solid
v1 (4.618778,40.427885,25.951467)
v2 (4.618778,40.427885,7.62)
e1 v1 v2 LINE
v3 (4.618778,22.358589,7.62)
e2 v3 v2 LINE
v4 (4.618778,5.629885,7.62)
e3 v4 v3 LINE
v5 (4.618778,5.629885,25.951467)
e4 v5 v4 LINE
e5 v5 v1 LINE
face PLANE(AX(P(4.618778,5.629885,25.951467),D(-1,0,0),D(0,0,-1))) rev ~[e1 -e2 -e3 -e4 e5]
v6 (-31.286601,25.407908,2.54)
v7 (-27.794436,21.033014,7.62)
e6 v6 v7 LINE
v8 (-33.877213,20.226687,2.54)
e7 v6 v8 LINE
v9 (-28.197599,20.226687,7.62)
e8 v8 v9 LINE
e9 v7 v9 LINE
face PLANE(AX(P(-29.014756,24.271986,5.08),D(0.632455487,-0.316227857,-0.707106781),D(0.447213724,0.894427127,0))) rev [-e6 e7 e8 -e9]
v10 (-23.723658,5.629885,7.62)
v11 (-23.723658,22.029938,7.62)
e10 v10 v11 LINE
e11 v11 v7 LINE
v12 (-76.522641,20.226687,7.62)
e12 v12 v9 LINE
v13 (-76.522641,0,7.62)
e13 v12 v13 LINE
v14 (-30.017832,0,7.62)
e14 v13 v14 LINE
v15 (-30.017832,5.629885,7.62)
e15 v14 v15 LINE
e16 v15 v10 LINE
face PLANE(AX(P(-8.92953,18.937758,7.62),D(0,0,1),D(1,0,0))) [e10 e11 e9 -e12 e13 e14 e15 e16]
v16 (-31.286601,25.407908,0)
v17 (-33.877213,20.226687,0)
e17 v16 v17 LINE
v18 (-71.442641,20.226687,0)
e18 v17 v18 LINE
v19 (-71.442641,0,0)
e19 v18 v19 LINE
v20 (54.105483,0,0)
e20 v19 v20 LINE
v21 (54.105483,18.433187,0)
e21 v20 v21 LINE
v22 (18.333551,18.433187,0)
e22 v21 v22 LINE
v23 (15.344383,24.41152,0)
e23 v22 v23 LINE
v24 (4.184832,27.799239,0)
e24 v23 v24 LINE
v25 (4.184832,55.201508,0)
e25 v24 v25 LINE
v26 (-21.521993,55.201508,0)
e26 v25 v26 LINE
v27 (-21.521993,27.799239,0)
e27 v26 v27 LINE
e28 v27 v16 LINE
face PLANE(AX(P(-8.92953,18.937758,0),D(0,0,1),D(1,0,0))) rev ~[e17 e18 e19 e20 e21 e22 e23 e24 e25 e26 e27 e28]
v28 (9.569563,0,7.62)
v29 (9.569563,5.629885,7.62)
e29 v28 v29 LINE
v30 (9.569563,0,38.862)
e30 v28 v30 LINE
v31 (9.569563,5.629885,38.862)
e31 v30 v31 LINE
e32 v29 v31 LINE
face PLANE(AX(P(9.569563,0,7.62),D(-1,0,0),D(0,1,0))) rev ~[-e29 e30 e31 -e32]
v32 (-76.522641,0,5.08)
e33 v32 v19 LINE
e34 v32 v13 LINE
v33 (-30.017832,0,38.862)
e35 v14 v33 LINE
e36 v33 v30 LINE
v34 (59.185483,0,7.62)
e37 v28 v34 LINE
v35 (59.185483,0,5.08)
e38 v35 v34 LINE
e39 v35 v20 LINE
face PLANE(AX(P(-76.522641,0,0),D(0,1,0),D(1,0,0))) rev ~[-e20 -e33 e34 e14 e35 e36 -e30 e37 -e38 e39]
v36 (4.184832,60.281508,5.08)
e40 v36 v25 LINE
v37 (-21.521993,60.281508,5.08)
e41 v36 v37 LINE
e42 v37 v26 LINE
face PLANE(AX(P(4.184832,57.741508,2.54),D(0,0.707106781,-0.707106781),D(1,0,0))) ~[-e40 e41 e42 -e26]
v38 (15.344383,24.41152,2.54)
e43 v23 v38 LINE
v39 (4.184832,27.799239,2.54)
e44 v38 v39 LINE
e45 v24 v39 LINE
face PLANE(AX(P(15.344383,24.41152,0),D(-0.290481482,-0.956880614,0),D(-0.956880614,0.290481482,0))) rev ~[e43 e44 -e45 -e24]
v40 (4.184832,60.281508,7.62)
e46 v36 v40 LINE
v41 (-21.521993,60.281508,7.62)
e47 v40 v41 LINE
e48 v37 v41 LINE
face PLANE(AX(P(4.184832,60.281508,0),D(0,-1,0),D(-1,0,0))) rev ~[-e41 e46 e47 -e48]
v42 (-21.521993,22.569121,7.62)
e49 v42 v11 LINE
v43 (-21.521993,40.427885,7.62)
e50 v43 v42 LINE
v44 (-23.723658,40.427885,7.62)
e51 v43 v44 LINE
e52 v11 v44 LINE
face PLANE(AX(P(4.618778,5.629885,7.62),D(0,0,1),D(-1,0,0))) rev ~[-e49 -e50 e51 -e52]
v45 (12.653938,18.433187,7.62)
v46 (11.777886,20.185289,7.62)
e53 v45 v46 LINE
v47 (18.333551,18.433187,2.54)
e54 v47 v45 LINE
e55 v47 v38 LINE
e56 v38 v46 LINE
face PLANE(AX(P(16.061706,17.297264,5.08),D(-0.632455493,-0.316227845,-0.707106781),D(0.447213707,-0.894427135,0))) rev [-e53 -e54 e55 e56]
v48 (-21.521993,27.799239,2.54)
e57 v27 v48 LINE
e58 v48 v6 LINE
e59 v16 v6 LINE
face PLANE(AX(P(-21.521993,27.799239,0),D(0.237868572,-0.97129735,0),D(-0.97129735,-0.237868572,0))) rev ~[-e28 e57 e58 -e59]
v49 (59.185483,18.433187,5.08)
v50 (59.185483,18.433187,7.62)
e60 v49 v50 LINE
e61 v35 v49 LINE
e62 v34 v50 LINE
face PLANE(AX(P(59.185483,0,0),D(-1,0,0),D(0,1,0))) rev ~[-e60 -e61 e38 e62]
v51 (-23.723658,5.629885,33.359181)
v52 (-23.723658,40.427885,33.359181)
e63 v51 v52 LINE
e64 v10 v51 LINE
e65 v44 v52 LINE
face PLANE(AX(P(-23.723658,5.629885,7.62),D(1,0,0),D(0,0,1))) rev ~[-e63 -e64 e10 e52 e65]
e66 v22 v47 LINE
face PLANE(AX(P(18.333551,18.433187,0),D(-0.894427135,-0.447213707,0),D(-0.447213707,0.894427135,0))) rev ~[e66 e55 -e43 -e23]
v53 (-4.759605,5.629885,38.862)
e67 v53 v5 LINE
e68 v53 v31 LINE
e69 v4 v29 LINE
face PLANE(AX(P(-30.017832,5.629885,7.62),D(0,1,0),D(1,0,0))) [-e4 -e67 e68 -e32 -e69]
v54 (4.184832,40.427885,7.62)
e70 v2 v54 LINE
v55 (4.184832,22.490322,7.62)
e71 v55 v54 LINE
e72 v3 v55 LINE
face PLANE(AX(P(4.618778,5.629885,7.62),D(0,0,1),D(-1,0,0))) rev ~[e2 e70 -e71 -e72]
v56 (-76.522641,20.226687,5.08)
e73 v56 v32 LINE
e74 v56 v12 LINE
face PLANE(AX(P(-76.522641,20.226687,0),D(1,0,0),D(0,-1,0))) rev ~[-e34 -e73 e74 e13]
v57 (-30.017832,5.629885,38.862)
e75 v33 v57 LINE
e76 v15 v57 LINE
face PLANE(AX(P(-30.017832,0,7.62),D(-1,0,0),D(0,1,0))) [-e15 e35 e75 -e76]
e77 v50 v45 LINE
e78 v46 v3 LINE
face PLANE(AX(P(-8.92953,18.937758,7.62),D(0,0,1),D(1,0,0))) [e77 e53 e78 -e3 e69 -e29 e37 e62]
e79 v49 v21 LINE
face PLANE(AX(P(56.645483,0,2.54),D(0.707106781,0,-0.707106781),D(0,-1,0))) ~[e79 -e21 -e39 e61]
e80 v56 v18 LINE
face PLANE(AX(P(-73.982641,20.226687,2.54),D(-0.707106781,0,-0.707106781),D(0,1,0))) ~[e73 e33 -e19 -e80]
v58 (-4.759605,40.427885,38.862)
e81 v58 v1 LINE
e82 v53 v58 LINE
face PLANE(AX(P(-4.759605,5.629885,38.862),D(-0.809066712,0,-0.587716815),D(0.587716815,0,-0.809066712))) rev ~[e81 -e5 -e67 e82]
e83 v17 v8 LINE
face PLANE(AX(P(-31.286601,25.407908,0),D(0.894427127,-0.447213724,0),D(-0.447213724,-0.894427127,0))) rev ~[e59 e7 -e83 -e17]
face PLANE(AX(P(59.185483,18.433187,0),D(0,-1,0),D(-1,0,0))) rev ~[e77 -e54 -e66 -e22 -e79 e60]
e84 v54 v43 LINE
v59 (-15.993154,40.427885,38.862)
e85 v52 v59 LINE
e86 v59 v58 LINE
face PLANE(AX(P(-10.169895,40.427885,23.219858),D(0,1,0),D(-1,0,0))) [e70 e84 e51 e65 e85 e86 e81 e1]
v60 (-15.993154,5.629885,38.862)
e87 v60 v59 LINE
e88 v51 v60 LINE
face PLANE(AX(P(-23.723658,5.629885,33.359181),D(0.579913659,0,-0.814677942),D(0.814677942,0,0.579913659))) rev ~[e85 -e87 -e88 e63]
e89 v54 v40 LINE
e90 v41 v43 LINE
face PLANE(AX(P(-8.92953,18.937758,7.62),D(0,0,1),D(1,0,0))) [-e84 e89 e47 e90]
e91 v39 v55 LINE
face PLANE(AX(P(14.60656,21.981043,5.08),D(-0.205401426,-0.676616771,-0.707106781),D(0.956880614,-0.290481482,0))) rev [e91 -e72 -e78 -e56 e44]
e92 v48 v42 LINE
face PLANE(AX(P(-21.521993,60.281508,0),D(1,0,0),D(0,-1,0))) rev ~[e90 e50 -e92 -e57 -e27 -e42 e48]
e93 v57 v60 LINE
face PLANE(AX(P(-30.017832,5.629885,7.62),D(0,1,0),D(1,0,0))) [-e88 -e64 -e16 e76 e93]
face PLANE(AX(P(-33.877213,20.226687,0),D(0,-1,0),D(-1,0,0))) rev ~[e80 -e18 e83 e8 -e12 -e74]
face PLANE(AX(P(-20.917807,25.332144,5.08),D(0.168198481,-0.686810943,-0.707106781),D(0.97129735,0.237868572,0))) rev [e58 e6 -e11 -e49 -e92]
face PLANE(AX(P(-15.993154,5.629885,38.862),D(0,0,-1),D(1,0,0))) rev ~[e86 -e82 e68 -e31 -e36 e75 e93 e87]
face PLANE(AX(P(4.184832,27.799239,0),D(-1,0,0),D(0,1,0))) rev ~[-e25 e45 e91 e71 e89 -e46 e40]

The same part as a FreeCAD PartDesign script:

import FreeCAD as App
import Part
import Sketcher
from FreeCAD import Vector
Q = App.Units.Quantity


def edges_at(feature, points):
    """Names of the edges that pass closest to the given points."""
    edges = feature.Shape.Edges
    near = lambda p: min(range(len(edges)), key=lambda i: edges[i].distToShape(Part.Vertex(*p))[0])
    return sorted({f"Edge{near(p) + 1}" for p in points})

doc = App.newDocument("Part")
body = doc.addObject("PartDesign::Body", "Body")

sketch1 = body.newObject("Sketcher::SketchObject", "Sketch")
sketch1.AttachmentSupport = (doc.getObject("XY_Plane"), [""])
sketch1.MapMode = "FlatFace"
sketch1.addGeometry(Part.LineSegment(Vector(-76.522641, 20.226687, 0), Vector(-76.522641, 0, 0)), False)
sketch1.addGeometry(Part.LineSegment(Vector(-76.522641, 0, 0), Vector(59.185483, 0, 0)), False)
sketch1.addGeometry(Part.LineSegment(Vector(59.185483, 0, 0), Vector(59.185483, 18.433187, 0)), False)
sketch1.addGeometry(Part.LineSegment(Vector(59.185483, 18.433187, 0), Vector(18.333551, 18.433187, 0)), False)
sketch1.addGeometry(Part.LineSegment(Vector(18.333551, 18.433187, 0), Vector(15.344383, 24.41152, 0)), False)
sketch1.addGeometry(Part.LineSegment(Vector(15.344383, 24.41152, 0), Vector(4.184832, 27.799239, 0)), False)
sketch1.addGeometry(Part.LineSegment(Vector(4.184832, 27.799239, 0), Vector(4.184832, 60.281508, 0)), False)
sketch1.addGeometry(Part.LineSegment(Vector(4.184832, 60.281508, 0), Vector(-21.521993, 60.281508, 0)), False)
sketch1.addGeometry(Part.LineSegment(Vector(-21.521993, 60.281508, 0), Vector(-21.521993, 27.799239, 0)), False)
sketch1.addGeometry(Part.LineSegment(Vector(-21.521993, 27.799239, 0), Vector(-31.286601, 25.407908, 0)), False)
sketch1.addGeometry(Part.LineSegment(Vector(-31.286601, 25.407908, 0), Vector(-33.877213, 20.226687, 0)), False)
sketch1.addGeometry(Part.LineSegment(Vector(-33.877213, 20.226687, 0), Vector(-76.522641, 20.226687, 0)), False)
sketch1.addConstraint(Sketcher.Constraint("Coincident", 0, 2, 1, 1))
sketch1.addConstraint(Sketcher.Constraint("Coincident", 1, 2, 2, 1))
sketch1.addConstraint(Sketcher.Constraint("Coincident", 2, 2, 3, 1))
sketch1.addConstraint(Sketcher.Constraint("Coincident", 3, 2, 4, 1))
sketch1.addConstraint(Sketcher.Constraint("Coincident", 4, 2, 5, 1))
sketch1.addConstraint(Sketcher.Constraint("Coincident", 5, 2, 6, 1))
sketch1.addConstraint(Sketcher.Constraint("Coincident", 6, 2, 7, 1))
sketch1.addConstraint(Sketcher.Constraint("Coincident", 7, 2, 8, 1))
sketch1.addConstraint(Sketcher.Constraint("Coincident", 8, 2, 9, 1))
sketch1.addConstraint(Sketcher.Constraint("Coincident", 9, 2, 10, 1))
sketch1.addConstraint(Sketcher.Constraint("Coincident", 10, 2, 11, 1))
sketch1.addConstraint(Sketcher.Constraint("Coincident", 11, 2, 0, 1))
sketch1.addConstraint(Sketcher.Constraint("Vertical", 0))
sketch1.addConstraint(Sketcher.Constraint("Horizontal", 1))
sketch1.addConstraint(Sketcher.Constraint("Vertical", 2))
sketch1.addConstraint(Sketcher.Constraint("Horizontal", 3))
sketch1.addConstraint(Sketcher.Constraint("Vertical", 6))
sketch1.addConstraint(Sketcher.Constraint("Horizontal", 7))
sketch1.addConstraint(Sketcher.Constraint("Vertical", 8))
sketch1.addConstraint(Sketcher.Constraint("Horizontal", 11))
sketch1.addConstraint(Sketcher.Constraint("PointOnObject", 0, 2, -1))
sketch1.addConstraint(Sketcher.Constraint("Horizontal", 5, 2, 8, 2))
sketch1.addConstraint(Sketcher.Constraint("DistanceX", 11, 2, 11, 1, Q("42.645428 mm")))
sketch1.addConstraint(Sketcher.Constraint("DistanceY", 6, 1, 6, 2, Q("32.482268 mm")))
sketch1.addConstraint(Sketcher.Constraint("DistanceX", 9, 2, -1, 1, Q("31.286601 mm")))
sketch1.addConstraint(Sketcher.Constraint("DistanceX", 4, 2, 2, 2, Q("43.841099 mm")))
sketch1.addConstraint(Sketcher.Constraint("DistanceY", 9, 2, 7, 2, Q("34.873599 mm")))
sketch1.addConstraint(Sketcher.Constraint("Distance", 4, Q("6.68398 mm")))
sketch1.addConstraint(Sketcher.Constraint("Distance", 5, Q("11.662428 mm")))
sketch1.addConstraint(Sketcher.Constraint("Distance", 9, Q("10.05316 mm")))
sketch1.addConstraint(Sketcher.Constraint("Distance", 10, Q("5.792782 mm")))
sketch1.addConstraint(Sketcher.Constraint("DistanceX", 1, 1, 1, 2, Q("135.708123 mm")))
sketch1.addConstraint(Sketcher.Constraint("DistanceX", 3, 2, 3, 1, Q("40.851932 mm")))
sketch1.addConstraint(Sketcher.Constraint("DistanceX", 7, 2, 7, 1, Q("25.706825 mm")))
sketch1.addConstraint(Sketcher.Constraint("DistanceY", 0, 2, 0, 1, Q("20.226687 mm")))
sketch1.addConstraint(Sketcher.Constraint("DistanceY", 2, 1, 2, 2, Q("18.433187 mm")))
pad1 = body.newObject("PartDesign::Pad", "Pad")
pad1.Profile = sketch1
pad1.Length = Q("0.3 in")
doc.recompute()

chamfer = body.newObject("PartDesign::Chamfer", "Chamfer")
chamfer.Base = (pad1, edges_at(pad1, [
    (-26.404, 26.604, 7.62),
    (-32.582, 22.817, 7.62),
    (9.765, 26.105, 7.62),
    (16.839, 21.422, 7.62),
    (59.185, 9.217, 0),
    (-76.523, 10.113, 0),
    (-8.669, 60.282, 0),
]))
chamfer.Size = Q("0.2 in")

sketch2 = body.newObject("Sketcher::SketchObject", "Sketch001")
sketch2.AttachmentSupport = (doc.getObject("XY_Plane"), [""])
sketch2.MapMode = "FlatFace"
sketch2.AttachmentOffset = App.Placement(Vector(0, 0, 0.3 * 25.4), App.Rotation())
sketch2.addGeometry(Part.LineSegment(Vector(-30.017832, 5.629885, 0), Vector(-30.017832, 0, 0)), False)
sketch2.addGeometry(Part.LineSegment(Vector(-30.017832, 0, 0), Vector(9.569563, 0, 0)), False)
sketch2.addGeometry(Part.LineSegment(Vector(9.569563, 0, 0), Vector(9.569563, 5.629885, 0)), False)
sketch2.addGeometry(Part.LineSegment(Vector(9.569563, 5.629885, 0), Vector(-30.017832, 5.629885, 0)), False)
sketch2.addConstraint(Sketcher.Constraint("Coincident", 0, 2, 1, 1))
sketch2.addConstraint(Sketcher.Constraint("Coincident", 1, 2, 2, 1))
sketch2.addConstraint(Sketcher.Constraint("Coincident", 2, 2, 3, 1))
sketch2.addConstraint(Sketcher.Constraint("Coincident", 3, 2, 0, 1))
sketch2.addConstraint(Sketcher.Constraint("Vertical", 0))
sketch2.addConstraint(Sketcher.Constraint("Horizontal", 1))
sketch2.addConstraint(Sketcher.Constraint("Vertical", 2))
sketch2.addConstraint(Sketcher.Constraint("Horizontal", 3))
sketch2.addConstraint(Sketcher.Constraint("PointOnObject", 0, 2, -1))
sketch2.addConstraint(Sketcher.Constraint("DistanceX", 1, 1, 1, 2, Q("39.587395 mm")))
sketch2.addConstraint(Sketcher.Constraint("DistanceY", 0, 2, 0, 1, Q("5.629885 mm")))
sketch2.addConstraint(Sketcher.Constraint("DistanceX", 0, 2, -1, 1, Q("30.017832 mm")))
pad2 = body.newObject("PartDesign::Pad", "Pad001")
pad2.Profile = sketch2
pad2.Length = Q("1.23 in")

sketch3 = body.newObject("Sketcher::SketchObject", "Sketch002")
sketch3.AttachmentSupport = (doc.getObject("XZ_Plane"), [""])
sketch3.MapMode = "FlatFace"
sketch3.AttachmentOffset = App.Placement(Vector(0, 0, -5.629885), App.Rotation())
sketch3.addGeometry(Part.LineSegment(Vector(4.618778, 25.951467, 0), Vector(4.618778, 7.62, 0)), False)
sketch3.addGeometry(Part.LineSegment(Vector(4.618778, 7.62, 0), Vector(-23.723658, 7.62, 0)), False)
sketch3.addGeometry(Part.LineSegment(Vector(-23.723658, 7.62, 0), Vector(-23.723658, 33.359181, 0)), False)
sketch3.addGeometry(Part.LineSegment(Vector(-23.723658, 33.359181, 0), Vector(-15.993154, 38.862, 0)), False)
sketch3.addGeometry(Part.LineSegment(Vector(-15.993154, 38.862, 0), Vector(-4.759605, 38.862, 0)), False)
sketch3.addGeometry(Part.LineSegment(Vector(-4.759605, 38.862, 0), Vector(4.618778, 25.951467, 0)), False)
sketch3.addConstraint(Sketcher.Constraint("Coincident", 0, 2, 1, 1))
sketch3.addConstraint(Sketcher.Constraint("Coincident", 1, 2, 2, 1))
sketch3.addConstraint(Sketcher.Constraint("Coincident", 2, 2, 3, 1))
sketch3.addConstraint(Sketcher.Constraint("Coincident", 3, 2, 4, 1))
sketch3.addConstraint(Sketcher.Constraint("Coincident", 4, 2, 5, 1))
sketch3.addConstraint(Sketcher.Constraint("Coincident", 5, 2, 0, 1))
sketch3.addConstraint(Sketcher.Constraint("Vertical", 0))
sketch3.addConstraint(Sketcher.Constraint("Horizontal", 1))
sketch3.addConstraint(Sketcher.Constraint("Vertical", 2))
sketch3.addConstraint(Sketcher.Constraint("Horizontal", 4))
sketch3.addConstraint(Sketcher.Constraint("DistanceY", -1, 1, 0, 2, Q("0.3 in")))
sketch3.addConstraint(Sketcher.Constraint("DistanceY", -1, 1, 3, 2, Q("1.53 in")))
sketch3.addConstraint(Sketcher.Constraint("DistanceX", 4, 1, 4, 2, Q("11.233549 mm")))
sketch3.addConstraint(Sketcher.Constraint("DistanceY", 2, 1, 2, 2, Q("25.739181 mm")))
sketch3.addConstraint(Sketcher.Constraint("Distance", 3, Q("9.489031 mm")))
sketch3.addConstraint(Sketcher.Constraint("DistanceX", 1, 2, 1, 1, Q("28.342436 mm")))
sketch3.addConstraint(Sketcher.Constraint("DistanceY", 0, 2, 0, 1, Q("18.331467 mm")))
sketch3.addConstraint(Sketcher.Constraint("DistanceX", 1, 2, -1, 1, Q("23.723658 mm")))
pad3 = body.newObject("PartDesign::Pad", "Pad002")
pad3.Profile = sketch3
pad3.Length = Q("1.37 in")
pad3.Reversed = True

doc.recompute()
